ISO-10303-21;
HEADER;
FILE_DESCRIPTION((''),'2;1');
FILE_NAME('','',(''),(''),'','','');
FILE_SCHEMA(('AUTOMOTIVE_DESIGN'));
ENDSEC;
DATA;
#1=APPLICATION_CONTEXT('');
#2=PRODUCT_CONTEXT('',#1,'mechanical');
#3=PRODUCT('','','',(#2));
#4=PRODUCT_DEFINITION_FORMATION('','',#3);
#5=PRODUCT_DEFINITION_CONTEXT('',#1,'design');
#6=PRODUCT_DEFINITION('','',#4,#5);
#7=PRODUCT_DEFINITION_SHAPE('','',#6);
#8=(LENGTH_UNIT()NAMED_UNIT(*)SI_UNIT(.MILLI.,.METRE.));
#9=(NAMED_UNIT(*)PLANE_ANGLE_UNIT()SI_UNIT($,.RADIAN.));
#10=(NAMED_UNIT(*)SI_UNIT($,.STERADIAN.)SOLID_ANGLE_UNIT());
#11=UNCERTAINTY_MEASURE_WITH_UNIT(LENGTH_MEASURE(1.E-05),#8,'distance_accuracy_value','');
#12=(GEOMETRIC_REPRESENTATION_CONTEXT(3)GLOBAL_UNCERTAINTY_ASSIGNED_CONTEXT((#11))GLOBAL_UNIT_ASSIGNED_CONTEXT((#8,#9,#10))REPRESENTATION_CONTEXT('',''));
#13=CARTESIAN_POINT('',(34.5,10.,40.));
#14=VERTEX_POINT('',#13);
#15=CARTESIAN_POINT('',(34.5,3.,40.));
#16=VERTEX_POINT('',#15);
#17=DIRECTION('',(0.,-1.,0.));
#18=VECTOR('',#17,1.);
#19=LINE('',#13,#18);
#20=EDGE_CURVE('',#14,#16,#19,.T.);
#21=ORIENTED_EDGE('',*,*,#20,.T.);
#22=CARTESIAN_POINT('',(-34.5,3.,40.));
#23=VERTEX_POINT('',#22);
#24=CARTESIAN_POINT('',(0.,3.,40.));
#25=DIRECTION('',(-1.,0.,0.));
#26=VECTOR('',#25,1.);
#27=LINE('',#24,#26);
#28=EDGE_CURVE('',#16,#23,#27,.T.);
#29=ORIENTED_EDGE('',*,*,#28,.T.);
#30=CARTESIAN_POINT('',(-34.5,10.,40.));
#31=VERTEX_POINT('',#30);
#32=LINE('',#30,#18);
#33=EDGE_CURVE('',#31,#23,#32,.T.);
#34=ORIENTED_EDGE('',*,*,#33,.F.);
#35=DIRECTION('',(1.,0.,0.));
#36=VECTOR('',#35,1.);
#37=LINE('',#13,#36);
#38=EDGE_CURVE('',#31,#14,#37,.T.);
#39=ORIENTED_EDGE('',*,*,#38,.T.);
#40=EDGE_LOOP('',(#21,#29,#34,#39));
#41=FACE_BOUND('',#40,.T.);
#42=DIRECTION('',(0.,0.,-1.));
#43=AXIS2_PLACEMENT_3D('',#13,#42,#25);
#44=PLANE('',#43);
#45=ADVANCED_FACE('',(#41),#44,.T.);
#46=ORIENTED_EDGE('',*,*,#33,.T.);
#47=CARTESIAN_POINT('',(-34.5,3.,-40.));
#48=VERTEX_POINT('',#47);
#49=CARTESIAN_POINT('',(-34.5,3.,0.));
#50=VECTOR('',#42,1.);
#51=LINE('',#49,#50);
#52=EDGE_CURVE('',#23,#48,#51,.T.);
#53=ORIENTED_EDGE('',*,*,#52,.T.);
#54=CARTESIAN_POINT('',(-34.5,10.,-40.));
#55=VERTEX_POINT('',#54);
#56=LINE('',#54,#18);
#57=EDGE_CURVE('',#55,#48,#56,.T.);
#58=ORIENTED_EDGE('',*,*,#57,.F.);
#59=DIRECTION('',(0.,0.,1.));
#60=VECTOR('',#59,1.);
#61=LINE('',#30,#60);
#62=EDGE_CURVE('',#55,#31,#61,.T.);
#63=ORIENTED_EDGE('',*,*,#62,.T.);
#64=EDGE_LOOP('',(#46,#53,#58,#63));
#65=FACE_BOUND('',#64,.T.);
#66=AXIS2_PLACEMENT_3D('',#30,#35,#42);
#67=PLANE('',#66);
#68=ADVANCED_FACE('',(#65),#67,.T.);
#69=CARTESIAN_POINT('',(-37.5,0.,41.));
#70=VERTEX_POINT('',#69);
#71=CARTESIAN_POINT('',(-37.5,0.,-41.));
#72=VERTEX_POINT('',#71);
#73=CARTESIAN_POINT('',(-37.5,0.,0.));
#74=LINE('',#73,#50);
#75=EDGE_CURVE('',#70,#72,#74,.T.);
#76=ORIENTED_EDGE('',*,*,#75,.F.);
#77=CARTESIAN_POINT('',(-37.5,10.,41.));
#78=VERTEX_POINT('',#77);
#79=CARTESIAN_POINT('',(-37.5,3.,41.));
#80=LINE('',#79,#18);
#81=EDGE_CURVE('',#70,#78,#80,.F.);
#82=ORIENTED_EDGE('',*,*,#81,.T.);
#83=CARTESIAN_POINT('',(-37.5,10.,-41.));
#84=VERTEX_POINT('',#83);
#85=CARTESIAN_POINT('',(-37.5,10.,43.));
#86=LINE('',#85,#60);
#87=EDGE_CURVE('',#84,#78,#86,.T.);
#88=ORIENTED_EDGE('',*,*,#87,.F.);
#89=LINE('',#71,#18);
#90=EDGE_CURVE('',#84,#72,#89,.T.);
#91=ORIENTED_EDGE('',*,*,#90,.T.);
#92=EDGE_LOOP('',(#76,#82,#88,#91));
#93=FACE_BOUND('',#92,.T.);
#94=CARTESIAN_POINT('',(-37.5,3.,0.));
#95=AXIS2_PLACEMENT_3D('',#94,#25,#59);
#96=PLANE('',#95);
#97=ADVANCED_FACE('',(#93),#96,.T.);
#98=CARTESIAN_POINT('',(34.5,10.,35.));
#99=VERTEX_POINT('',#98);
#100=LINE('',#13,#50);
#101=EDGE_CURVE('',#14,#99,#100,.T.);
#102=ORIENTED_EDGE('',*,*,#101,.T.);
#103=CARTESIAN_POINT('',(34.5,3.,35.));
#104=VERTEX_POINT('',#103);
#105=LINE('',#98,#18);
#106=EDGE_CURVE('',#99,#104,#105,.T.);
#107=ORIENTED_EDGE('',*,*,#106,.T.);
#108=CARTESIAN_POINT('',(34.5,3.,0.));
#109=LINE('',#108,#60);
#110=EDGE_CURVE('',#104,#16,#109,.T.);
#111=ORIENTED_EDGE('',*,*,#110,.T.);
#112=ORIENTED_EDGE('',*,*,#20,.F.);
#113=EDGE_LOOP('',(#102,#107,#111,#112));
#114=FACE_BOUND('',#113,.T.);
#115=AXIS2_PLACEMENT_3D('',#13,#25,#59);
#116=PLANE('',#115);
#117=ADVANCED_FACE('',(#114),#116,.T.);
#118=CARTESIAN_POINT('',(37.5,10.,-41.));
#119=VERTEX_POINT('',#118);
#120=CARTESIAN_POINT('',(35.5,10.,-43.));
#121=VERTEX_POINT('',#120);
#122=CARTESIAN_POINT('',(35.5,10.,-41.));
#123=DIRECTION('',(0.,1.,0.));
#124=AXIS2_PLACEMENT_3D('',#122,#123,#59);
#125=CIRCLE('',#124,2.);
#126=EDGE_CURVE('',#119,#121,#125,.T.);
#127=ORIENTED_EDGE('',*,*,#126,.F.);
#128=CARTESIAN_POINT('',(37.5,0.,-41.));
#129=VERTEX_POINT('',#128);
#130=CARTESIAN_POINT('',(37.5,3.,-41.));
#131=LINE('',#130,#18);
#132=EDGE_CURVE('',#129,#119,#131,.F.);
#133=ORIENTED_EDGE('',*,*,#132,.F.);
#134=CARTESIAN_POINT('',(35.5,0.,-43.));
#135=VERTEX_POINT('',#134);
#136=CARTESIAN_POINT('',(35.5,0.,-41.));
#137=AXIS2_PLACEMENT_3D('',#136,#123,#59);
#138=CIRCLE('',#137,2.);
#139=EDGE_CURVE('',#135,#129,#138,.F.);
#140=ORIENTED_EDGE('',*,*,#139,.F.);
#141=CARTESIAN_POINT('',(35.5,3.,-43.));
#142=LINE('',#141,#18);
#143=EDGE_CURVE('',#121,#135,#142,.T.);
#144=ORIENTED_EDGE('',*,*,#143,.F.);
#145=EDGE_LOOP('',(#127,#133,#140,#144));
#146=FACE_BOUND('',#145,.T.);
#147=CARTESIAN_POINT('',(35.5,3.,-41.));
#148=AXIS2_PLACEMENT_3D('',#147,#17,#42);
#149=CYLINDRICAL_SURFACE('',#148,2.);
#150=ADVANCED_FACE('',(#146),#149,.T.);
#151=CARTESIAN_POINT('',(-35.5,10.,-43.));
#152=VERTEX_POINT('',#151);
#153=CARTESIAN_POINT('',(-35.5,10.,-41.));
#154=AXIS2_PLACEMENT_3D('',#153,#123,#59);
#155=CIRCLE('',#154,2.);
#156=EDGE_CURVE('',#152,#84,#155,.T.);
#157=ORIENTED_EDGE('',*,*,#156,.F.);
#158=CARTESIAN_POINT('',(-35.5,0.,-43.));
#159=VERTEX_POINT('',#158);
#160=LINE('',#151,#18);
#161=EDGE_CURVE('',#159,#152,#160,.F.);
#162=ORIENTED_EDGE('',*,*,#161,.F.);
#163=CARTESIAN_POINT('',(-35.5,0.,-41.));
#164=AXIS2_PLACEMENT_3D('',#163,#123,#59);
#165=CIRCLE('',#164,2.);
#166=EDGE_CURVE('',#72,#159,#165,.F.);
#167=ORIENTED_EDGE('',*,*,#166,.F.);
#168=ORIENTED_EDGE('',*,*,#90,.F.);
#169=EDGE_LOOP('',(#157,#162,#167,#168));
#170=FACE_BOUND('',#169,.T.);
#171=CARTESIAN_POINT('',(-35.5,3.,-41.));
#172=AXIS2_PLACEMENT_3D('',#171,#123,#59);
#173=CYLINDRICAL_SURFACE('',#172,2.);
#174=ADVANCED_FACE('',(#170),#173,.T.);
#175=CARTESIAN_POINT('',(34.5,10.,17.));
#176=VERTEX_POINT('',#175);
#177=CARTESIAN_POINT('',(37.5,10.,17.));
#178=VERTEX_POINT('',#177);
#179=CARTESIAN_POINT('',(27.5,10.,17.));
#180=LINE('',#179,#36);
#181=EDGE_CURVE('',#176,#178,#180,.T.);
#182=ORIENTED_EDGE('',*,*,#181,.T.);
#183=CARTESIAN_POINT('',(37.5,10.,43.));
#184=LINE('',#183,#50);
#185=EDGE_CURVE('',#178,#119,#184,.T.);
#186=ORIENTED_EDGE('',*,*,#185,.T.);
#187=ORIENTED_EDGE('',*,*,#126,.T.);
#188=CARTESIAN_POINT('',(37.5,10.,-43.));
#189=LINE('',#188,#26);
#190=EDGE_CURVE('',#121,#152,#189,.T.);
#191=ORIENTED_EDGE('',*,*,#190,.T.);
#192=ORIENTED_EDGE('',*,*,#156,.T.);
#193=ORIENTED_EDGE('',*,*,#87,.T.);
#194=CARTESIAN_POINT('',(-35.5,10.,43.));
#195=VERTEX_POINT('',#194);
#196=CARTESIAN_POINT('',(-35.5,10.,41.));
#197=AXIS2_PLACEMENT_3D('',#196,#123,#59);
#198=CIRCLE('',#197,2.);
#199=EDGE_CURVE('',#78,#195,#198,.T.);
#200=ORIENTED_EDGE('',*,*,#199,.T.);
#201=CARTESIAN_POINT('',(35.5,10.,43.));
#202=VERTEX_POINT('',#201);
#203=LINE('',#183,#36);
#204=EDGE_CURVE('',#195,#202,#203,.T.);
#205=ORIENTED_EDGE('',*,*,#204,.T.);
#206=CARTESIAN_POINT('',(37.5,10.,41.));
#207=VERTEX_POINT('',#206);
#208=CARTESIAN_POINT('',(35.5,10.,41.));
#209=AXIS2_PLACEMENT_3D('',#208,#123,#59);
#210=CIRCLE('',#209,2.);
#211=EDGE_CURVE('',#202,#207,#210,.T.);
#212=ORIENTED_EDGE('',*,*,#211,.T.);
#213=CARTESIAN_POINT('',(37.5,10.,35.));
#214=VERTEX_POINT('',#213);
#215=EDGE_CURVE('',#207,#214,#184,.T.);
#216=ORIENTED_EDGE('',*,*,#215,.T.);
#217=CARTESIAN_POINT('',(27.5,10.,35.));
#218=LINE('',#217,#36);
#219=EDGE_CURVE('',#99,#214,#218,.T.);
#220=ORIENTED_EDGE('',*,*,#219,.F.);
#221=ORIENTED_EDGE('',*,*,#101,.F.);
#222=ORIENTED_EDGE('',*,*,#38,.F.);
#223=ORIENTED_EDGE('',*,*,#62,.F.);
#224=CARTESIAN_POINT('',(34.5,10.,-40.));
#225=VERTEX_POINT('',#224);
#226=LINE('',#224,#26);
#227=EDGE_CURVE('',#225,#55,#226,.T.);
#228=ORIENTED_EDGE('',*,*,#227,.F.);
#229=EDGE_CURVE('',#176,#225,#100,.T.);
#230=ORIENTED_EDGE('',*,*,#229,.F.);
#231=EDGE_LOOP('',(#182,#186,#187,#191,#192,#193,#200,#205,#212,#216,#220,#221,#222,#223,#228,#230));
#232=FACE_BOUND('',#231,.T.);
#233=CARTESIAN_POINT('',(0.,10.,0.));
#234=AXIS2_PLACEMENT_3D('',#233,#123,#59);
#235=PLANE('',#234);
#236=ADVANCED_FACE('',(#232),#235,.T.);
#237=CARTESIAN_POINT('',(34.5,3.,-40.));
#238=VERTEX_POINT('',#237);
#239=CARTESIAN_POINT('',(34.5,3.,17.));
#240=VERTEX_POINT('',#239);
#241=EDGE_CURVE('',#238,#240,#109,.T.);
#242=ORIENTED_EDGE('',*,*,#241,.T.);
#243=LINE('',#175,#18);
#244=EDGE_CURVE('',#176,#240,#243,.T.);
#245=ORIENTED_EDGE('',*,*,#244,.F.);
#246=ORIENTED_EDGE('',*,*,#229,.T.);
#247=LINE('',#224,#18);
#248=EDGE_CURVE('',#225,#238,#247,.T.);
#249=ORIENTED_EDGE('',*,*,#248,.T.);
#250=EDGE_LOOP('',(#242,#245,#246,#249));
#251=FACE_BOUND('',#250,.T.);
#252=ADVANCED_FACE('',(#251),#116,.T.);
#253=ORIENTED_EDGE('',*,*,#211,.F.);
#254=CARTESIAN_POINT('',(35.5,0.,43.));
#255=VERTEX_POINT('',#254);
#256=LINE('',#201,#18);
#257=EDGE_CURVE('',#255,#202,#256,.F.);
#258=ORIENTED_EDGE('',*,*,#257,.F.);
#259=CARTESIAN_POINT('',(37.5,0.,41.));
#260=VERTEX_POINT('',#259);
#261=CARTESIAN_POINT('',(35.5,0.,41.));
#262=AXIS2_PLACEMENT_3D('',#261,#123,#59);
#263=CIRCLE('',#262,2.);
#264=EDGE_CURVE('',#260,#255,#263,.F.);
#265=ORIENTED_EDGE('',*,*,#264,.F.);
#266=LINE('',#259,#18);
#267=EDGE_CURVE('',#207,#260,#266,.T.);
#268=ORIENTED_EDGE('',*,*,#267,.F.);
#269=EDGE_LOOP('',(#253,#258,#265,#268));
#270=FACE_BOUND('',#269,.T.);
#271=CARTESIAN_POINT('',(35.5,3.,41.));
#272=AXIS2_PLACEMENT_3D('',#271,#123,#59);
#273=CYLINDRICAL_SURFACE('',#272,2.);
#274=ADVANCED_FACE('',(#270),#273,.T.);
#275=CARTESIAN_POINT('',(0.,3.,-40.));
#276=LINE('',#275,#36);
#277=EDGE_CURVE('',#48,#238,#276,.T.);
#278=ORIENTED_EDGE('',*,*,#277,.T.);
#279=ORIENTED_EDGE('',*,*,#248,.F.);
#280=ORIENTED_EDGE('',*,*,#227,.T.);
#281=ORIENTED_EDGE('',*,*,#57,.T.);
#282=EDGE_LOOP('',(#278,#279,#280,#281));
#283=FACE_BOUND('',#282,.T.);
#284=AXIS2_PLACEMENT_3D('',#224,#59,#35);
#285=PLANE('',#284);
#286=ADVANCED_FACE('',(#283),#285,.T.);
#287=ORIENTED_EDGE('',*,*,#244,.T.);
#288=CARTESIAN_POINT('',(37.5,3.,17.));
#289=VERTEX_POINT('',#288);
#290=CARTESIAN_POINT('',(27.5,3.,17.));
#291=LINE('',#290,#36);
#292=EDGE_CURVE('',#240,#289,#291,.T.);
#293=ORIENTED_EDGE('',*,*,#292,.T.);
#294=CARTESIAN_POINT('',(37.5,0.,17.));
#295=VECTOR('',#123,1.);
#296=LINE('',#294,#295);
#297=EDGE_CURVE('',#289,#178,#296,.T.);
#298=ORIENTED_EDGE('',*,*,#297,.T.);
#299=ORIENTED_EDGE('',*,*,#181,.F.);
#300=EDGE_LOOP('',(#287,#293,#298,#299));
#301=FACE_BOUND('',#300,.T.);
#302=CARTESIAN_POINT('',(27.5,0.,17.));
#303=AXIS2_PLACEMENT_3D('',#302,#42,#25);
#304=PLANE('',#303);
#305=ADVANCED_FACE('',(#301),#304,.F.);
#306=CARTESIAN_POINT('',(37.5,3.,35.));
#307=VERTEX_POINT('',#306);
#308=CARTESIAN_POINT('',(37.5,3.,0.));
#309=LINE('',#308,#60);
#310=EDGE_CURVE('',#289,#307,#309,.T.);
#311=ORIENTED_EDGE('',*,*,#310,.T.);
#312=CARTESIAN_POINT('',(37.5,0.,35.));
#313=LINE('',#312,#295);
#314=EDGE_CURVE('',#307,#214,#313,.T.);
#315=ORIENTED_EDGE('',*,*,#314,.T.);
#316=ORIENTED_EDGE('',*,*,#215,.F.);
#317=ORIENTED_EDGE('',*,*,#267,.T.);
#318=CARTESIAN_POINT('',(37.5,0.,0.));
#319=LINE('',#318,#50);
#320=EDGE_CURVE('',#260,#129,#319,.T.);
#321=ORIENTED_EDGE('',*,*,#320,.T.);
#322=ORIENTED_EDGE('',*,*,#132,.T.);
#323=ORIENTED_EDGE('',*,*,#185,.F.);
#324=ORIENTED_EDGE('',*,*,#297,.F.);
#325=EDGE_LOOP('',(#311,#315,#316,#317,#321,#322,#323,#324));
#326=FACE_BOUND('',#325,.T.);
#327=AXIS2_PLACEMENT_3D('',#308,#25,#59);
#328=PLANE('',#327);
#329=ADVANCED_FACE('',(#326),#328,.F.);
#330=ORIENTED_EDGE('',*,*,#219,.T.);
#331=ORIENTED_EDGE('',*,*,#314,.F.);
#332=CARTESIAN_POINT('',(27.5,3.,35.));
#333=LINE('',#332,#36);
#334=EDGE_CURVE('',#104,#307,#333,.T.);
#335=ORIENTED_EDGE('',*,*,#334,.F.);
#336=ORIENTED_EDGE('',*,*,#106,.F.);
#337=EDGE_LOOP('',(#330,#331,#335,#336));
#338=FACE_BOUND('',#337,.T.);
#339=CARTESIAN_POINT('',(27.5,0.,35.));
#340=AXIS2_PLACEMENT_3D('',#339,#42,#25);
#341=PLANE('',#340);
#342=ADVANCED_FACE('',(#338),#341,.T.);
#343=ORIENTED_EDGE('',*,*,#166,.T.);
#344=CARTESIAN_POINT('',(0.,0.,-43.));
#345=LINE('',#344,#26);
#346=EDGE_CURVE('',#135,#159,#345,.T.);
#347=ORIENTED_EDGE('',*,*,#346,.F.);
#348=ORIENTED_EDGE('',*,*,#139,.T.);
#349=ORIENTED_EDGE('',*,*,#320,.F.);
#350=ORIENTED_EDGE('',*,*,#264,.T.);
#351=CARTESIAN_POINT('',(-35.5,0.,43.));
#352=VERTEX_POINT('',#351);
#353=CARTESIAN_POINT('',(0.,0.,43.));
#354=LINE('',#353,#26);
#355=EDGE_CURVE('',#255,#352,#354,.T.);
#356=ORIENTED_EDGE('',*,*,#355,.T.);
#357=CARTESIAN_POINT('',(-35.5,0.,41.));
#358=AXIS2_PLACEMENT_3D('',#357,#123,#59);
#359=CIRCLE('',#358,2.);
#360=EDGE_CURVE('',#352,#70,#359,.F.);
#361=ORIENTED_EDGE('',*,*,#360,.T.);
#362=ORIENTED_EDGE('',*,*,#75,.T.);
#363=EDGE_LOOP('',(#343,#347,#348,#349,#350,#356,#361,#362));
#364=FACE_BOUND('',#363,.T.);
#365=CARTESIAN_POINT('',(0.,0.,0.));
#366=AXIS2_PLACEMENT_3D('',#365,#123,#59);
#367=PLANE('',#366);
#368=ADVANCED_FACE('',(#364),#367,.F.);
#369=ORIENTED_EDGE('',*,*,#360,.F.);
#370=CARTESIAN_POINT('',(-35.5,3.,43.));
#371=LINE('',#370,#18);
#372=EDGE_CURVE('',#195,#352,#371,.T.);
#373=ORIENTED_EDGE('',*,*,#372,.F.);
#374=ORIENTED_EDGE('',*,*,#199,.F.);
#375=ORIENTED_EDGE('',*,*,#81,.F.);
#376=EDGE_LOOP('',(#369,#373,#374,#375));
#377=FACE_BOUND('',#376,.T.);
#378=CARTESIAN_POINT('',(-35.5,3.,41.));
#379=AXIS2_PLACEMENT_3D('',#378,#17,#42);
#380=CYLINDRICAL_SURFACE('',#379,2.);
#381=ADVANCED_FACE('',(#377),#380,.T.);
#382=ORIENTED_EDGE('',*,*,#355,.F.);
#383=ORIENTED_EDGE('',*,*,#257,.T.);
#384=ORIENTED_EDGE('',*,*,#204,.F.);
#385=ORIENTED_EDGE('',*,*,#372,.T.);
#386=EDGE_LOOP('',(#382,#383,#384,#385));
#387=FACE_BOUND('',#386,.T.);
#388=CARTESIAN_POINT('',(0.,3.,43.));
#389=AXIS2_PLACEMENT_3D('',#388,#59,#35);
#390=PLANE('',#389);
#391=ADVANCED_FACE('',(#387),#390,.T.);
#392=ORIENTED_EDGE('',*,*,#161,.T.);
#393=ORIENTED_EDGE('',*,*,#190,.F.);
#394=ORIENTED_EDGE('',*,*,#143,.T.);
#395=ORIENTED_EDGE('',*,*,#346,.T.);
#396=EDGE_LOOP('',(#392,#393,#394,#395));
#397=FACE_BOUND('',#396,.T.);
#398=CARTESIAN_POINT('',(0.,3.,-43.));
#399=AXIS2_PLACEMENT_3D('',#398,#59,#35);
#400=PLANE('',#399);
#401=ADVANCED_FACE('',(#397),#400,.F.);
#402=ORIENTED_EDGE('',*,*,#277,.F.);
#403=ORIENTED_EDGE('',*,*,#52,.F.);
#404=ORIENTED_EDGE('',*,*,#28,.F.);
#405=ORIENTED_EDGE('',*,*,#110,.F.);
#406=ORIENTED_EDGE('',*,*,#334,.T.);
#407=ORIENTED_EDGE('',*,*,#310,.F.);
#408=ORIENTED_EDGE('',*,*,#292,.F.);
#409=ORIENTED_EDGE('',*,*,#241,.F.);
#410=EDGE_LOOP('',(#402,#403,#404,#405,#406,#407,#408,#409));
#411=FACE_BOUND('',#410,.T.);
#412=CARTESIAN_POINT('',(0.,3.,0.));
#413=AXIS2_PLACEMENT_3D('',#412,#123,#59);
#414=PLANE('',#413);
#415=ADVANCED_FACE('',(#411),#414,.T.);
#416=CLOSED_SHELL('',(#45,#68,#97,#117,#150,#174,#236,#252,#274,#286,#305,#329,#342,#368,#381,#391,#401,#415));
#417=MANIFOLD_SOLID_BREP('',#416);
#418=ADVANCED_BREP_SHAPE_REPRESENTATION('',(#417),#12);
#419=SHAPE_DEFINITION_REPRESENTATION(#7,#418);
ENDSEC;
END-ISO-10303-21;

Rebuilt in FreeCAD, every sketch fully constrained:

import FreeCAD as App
import Part
import Sketcher
from FreeCAD import Vector


def edges_at(feature, points):
    """Names of the edges that pass closest to the given points."""
    edges = feature.Shape.Edges
    near = lambda p: min(range(len(edges)), key=lambda i: edges[i].distToShape(Part.Vertex(*p))[0])
    return sorted({f"Edge{near(p) + 1}" for p in points})


def add_polygon(sketch, points):
    """Adds a closed chain of lines whose ends are joined by coincident constraints."""
    first, n = sketch.GeometryCount, len(points)
    for a, b in zip(points, points[1:] + points[:1]):
        sketch.addGeometry(Part.LineSegment(App.Vector(*a, 0), App.Vector(*b, 0)), False)
    for i in range(n):
        sketch.addConstraint(Sketcher.Constraint("Coincident", first + i, 2, first + (i + 1) % n, 1))

doc = App.newDocument("Part")
body = doc.addObject("PartDesign::Body", "Body")

sketch1 = body.newObject("Sketcher::SketchObject", "Sketch")
sketch1.AttachmentSupport = (doc.getObject("XZ_Plane"), [""])
sketch1.MapMode = "FlatFace"
add_polygon(sketch1, [(-38, -43), (-38, 43), (38, 43), (38, -43)])
sketch1.addConstraint([
    Sketcher.Constraint("Vertical", 0),
    Sketcher.Constraint("Horizontal", 1),
    Sketcher.Constraint("Vertical", 2),
    Sketcher.Constraint("Horizontal", 3),
    Sketcher.Constraint("Symmetric", 0, 2, 2, 2, -1, 1),
    Sketcher.Constraint("DistanceX", 1, 1, 1, 2, 75.0),
    Sketcher.Constraint("DistanceY", 0, 1, 0, 2, 86.0),
])
pad1 = body.newObject("PartDesign::Pad", "Pad")
pad1.Profile = sketch1
pad1.Length = 3
pad1.Reversed = True

sketch2 = body.newObject("Sketcher::SketchObject", "Sketch001")
sketch2.AttachmentSupport = (doc.getObject("XZ_Plane"), [""])
sketch2.MapMode = "FlatFace"
add_polygon(sketch2, [(-38, -43), (-38, 43), (38, 43), (38, -43)])
add_polygon(sketch2, [(34, 40), (-34, 40), (-34, -40), (34, -40)])
sketch2.addConstraint([
    Sketcher.Constraint("Vertical", 0),
    Sketcher.Constraint("Horizontal", 1),
    Sketcher.Constraint("Vertical", 2),
    Sketcher.Constraint("Horizontal", 3),
    Sketcher.Constraint("Horizontal", 4),
    Sketcher.Constraint("Vertical", 5),
    Sketcher.Constraint("Horizontal", 6),
    Sketcher.Constraint("Vertical", 7),
    Sketcher.Constraint("Symmetric", 0, 2, 2, 2, -1, 1),
    Sketcher.Constraint("Symmetric", 4, 2, 6, 2, -1, 1),
    Sketcher.Constraint("DistanceX", 1, 1, 1, 2, 75.0),
    Sketcher.Constraint("DistanceX", 4, 2, 4, 1, 69.0),
    Sketcher.Constraint("DistanceY", 0, 1, 0, 2, 86.0),
    Sketcher.Constraint("DistanceY", 5, 2, 5, 1, 80.0),
])
pad2 = body.newObject("PartDesign::Pad", "Pad001")
pad2.Profile = sketch2
pad2.Length = 10
pad2.Reversed = True

sketch3 = body.newObject("Sketcher::SketchObject", "Sketch002")
sketch3.AttachmentSupport = (doc.getObject("YZ_Plane"), [""])
sketch3.MapMode = "FlatFace"
sketch3.AttachmentOffset = App.Placement(Vector(0, 0, 37.5), App.Rotation())
add_polygon(sketch3, [(10, 35), (3, 35), (3, 17), (10, 17)])
sketch3.addConstraint([
    Sketcher.Constraint("Horizontal", 0),
    Sketcher.Constraint("Vertical", 1),
    Sketcher.Constraint("Horizontal", 2),
    Sketcher.Constraint("Vertical", 3),
    Sketcher.Constraint("DistanceX", 0, 2, 0, 1, 7.0),
    Sketcher.Constraint("DistanceY", 1, 2, 1, 1, 18.0),
    Sketcher.Constraint("DistanceX", -1, 1, 0, 2, 3.0),
    Sketcher.Constraint("DistanceY", -1, 1, 0, 2, 35.0),
])
pocket1 = body.newObject("PartDesign::Pocket", "Pocket")
pocket1.Profile = sketch3
pocket1.Length = 10
doc.recompute()

fillet = body.newObject("PartDesign::Fillet", "Fillet")
fillet.Base = (pocket1, edges_at(pocket1, [
    (-37.5, 5, -43),
    (37.5, 5, -43),
    (37.5, 5, 43),
    (-37.5, 5, 43),
]))
fillet.Radius = 2

doc.recompute()
